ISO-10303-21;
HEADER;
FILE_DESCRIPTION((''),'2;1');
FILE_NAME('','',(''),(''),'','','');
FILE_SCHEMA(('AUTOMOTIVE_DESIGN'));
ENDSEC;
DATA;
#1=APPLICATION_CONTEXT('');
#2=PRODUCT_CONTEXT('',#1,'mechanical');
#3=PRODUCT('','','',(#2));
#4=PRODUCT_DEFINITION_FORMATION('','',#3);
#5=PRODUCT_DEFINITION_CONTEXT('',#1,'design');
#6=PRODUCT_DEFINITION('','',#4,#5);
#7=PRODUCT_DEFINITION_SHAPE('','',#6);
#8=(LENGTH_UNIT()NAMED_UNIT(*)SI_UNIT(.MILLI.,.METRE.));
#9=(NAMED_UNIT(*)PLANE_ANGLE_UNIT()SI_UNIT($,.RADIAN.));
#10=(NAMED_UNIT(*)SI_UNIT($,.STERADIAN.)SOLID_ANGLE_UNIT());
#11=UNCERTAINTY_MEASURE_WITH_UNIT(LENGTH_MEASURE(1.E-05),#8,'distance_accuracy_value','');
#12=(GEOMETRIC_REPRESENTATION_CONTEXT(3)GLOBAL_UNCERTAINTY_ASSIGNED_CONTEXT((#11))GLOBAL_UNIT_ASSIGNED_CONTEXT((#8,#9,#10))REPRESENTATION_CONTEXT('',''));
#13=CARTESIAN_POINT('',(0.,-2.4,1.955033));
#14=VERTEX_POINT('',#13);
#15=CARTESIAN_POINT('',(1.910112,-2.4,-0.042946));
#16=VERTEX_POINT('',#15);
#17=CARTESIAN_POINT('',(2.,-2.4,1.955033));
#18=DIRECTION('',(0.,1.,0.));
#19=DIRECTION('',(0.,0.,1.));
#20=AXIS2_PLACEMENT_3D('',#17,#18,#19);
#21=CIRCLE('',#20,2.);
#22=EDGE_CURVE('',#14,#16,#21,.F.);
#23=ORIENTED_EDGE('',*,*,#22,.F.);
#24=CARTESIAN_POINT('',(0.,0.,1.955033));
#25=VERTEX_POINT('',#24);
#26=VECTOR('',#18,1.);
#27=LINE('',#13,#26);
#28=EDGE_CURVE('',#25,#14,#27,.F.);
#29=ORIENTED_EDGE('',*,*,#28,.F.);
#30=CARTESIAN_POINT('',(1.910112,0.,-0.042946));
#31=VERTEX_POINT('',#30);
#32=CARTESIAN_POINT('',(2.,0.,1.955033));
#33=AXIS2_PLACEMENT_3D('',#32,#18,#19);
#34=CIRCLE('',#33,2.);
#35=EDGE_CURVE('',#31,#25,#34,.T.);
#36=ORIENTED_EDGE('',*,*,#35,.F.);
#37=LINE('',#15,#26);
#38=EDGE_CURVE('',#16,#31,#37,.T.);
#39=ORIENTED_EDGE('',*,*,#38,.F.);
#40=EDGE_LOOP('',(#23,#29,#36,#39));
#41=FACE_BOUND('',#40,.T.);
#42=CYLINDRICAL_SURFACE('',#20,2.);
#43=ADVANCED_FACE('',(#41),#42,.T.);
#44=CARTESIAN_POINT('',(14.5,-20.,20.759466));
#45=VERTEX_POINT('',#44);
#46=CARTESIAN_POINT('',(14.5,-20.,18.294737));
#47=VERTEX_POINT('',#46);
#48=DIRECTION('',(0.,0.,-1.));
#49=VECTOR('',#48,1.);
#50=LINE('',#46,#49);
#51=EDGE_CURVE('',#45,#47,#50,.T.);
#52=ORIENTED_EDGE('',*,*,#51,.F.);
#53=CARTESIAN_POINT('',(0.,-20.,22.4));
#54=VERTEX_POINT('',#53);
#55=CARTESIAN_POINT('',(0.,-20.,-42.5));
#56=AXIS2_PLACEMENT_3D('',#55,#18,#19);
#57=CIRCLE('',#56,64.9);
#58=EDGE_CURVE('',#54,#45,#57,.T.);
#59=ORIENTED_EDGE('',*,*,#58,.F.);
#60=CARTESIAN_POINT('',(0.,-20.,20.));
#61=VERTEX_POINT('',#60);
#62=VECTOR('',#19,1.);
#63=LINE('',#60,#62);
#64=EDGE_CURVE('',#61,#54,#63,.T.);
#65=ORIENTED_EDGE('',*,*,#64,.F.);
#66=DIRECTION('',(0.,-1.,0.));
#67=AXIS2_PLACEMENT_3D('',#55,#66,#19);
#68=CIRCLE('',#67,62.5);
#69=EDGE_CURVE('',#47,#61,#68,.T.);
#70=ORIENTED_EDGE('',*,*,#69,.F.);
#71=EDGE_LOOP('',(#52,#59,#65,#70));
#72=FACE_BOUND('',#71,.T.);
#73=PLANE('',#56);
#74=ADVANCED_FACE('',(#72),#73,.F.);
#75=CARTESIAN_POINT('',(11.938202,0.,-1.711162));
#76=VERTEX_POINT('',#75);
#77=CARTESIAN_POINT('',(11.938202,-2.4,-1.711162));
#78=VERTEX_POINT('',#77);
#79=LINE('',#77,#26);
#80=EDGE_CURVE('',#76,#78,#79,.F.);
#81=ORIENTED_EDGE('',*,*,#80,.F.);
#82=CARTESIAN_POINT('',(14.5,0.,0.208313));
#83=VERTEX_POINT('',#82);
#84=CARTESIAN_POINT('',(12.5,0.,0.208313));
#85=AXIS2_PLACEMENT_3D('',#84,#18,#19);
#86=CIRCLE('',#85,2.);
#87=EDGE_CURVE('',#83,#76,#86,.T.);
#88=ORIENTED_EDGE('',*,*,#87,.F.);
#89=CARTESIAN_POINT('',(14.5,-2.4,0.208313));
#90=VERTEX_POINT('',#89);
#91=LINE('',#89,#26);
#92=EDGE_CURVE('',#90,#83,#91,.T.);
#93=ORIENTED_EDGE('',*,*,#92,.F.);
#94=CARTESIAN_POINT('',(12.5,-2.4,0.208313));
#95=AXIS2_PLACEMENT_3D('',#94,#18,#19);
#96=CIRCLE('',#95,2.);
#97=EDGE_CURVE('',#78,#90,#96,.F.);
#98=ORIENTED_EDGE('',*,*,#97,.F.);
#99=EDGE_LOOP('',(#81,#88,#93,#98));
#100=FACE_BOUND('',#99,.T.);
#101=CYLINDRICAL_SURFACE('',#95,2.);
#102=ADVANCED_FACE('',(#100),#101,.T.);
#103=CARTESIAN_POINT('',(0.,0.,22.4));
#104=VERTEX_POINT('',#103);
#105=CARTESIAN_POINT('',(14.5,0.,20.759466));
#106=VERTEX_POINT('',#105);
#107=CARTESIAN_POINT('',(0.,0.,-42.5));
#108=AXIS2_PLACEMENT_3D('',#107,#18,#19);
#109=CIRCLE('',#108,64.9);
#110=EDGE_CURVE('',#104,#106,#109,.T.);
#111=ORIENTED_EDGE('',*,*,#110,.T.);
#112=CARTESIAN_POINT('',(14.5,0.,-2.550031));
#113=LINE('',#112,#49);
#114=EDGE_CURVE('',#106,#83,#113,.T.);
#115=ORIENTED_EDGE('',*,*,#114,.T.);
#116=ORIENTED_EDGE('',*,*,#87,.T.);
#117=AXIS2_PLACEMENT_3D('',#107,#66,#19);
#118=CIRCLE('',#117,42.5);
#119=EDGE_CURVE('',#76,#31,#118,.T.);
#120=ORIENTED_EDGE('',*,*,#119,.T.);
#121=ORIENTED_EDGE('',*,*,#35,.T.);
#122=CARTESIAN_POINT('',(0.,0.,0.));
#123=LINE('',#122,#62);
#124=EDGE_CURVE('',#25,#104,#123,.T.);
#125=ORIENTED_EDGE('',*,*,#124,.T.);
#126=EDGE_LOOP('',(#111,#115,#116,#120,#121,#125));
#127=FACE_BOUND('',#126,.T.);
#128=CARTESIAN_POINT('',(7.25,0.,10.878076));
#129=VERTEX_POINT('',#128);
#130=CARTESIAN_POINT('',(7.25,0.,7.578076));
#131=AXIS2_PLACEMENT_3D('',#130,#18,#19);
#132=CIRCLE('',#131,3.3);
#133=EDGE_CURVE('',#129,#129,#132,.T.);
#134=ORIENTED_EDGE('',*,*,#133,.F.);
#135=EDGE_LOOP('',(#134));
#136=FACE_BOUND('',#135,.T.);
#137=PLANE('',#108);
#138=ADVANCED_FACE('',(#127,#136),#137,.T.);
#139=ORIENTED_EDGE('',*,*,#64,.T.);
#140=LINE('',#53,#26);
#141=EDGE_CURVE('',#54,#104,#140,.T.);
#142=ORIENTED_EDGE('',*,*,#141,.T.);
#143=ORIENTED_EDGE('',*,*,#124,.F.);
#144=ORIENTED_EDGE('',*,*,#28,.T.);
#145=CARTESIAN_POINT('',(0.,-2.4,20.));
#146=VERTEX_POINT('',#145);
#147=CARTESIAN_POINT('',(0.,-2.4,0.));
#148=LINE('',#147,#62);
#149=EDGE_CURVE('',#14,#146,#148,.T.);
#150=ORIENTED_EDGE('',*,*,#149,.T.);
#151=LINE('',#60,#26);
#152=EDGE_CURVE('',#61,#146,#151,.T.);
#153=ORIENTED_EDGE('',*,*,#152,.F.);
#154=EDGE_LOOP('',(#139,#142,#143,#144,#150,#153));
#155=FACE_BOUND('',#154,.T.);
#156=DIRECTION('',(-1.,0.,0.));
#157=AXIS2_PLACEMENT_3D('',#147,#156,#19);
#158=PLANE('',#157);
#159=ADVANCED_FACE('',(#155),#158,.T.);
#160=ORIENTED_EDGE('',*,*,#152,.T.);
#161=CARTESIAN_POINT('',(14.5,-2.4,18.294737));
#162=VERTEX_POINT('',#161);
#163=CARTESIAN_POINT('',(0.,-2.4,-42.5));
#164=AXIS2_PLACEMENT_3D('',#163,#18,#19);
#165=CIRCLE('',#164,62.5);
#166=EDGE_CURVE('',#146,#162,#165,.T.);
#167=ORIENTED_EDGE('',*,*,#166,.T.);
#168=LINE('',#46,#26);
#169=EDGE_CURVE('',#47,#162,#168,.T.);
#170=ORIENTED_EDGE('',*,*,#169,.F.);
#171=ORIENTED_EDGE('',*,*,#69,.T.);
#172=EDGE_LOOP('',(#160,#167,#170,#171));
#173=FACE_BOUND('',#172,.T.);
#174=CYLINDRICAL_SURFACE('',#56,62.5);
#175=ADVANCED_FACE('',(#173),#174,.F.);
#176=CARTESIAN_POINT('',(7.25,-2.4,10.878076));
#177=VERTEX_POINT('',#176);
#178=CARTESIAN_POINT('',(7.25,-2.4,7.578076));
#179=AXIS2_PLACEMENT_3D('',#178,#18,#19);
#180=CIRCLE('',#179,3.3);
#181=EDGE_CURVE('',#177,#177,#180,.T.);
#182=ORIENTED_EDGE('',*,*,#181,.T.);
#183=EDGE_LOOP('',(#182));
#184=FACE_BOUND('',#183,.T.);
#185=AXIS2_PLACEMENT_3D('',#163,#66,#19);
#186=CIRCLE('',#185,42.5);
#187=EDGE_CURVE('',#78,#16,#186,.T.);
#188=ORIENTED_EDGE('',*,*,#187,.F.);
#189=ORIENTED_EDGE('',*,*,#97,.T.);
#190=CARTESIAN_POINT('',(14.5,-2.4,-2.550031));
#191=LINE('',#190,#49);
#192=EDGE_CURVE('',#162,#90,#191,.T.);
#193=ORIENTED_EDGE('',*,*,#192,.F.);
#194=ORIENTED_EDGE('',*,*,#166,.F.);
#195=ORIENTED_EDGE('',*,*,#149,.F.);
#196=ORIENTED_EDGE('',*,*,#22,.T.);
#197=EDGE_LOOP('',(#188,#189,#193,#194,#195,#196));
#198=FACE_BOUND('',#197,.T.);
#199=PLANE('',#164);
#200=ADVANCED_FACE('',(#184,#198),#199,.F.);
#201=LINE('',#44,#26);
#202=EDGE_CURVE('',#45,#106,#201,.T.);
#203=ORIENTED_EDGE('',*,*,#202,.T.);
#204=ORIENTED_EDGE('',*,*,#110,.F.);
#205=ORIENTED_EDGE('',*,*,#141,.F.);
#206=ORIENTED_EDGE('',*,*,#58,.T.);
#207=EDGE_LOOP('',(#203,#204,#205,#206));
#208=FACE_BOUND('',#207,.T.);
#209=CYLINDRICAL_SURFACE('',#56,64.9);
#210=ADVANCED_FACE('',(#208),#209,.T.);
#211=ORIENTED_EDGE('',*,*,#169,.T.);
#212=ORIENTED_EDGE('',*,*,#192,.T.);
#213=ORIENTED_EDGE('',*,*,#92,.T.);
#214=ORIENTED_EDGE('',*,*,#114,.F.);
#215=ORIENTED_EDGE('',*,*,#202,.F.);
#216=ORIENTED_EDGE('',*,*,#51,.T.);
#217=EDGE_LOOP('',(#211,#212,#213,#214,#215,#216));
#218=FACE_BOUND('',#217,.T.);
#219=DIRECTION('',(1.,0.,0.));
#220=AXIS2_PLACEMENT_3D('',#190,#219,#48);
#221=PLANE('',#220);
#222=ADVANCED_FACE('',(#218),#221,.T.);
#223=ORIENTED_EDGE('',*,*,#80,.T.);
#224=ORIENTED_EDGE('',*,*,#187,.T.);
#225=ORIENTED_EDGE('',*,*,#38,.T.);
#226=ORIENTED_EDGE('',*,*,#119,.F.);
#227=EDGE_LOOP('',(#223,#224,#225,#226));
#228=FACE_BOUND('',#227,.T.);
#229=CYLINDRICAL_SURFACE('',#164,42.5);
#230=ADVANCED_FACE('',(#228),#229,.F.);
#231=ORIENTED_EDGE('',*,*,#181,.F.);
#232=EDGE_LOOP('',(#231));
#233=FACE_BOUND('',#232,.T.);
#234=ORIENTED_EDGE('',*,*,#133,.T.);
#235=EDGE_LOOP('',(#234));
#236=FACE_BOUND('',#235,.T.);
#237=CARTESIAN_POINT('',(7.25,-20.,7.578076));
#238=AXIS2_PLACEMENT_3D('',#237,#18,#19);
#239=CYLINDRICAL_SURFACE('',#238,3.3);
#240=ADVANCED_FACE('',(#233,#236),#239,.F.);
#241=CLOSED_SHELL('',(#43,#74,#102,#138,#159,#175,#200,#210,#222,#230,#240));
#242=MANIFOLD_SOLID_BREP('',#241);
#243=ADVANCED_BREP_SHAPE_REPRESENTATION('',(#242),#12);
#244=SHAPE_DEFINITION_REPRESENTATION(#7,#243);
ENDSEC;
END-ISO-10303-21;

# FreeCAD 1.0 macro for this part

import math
import FreeCAD as App
import Part
import Sketcher

V = App.Vector


def edges_at(feature, points):
    """Names of the edges that pass closest to the given points."""
    edges = feature.Shape.Edges
    near = lambda p: min(range(len(edges)), key=lambda i: edges[i].distToShape(Part.Vertex(*p))[0])
    return sorted({f"Edge{near(p) + 1}" for p in points})

doc = App.newDocument("Part")
body = doc.addObject("PartDesign::Body", "Body")

sketch1 = body.newObject("Sketcher::SketchObject", "Sketch")
sketch1.AttachmentSupport = (doc.getObject("XZ_Plane"), [""])
sketch1.MapMode = "FlatFace"
sketch1.addGeometry([
    Part.LineSegment(V(0, 0, 0), V(0, 20, 0)),
    Part.ArcOfCircle(Part.Circle(V(0, -42, 0), V(0, 0, 1), 62), math.radians(76.59), math.radians(90)),
    Part.LineSegment(V(14, 18, 0), V(14, -3, 0)),
    Part.ArcOfCircle(Part.Circle(V(0, -43, 0), V(0, 0, 1), 43), math.radians(70.05), math.radians(90)),
], False)
sketch1.addConstraint([
    Sketcher.Constraint("Coincident", 0, 2, 1, 2),
    Sketcher.Constraint("Coincident", 1, 1, 2, 1),
    Sketcher.Constraint("Coincident", 2, 2, 3, 1),
    Sketcher.Constraint("Coincident", 3, 2, 0, 1),
    Sketcher.Constraint("Vertical", 0),
    Sketcher.Constraint("Vertical", 2),
    Sketcher.Constraint("Coincident", 3, 2, -1, 1),
    Sketcher.Constraint("Coincident", 3, 3, 1, 3),
    Sketcher.Constraint("PointOnObject", 1, 3, -2),
    Sketcher.Constraint("Radius", 1, 62.5),
    Sketcher.Constraint("Radius", 3, 42.5),
    Sketcher.Constraint("DistanceX", -1, 1, 1, 1, 14.5),
])
pad1 = body.newObject("PartDesign::Pad", "Pad")
pad1.Profile = sketch1
pad1.Length = 2.4

sketch2 = body.newObject("Sketcher::SketchObject", "Sketch001")
sketch2.AttachmentSupport = (doc.getObject("XZ_Plane"), [""])
sketch2.MapMode = "FlatFace"
sketch2.addGeometry([
    Part.LineSegment(V(0, 20, 0), V(0, 22.4, 0)),
    Part.ArcOfCircle(Part.Circle(V(0, -42.5, 0), V(0, 0, 1), 64.9), math.radians(77.09), math.radians(90)),
    Part.LineSegment(V(14.5, 20.8, 0), V(14.5, 18.3, 0)),
    Part.ArcOfCircle(Part.Circle(V(0, -42.5, 0), V(0, 0, 1), 62.5), math.radians(76.59), math.radians(90)),
], False)
sketch2.addConstraint([
    Sketcher.Constraint("Coincident", 0, 2, 1, 2),
    Sketcher.Constraint("Coincident", 1, 1, 2, 1),
    Sketcher.Constraint("Coincident", 2, 2, 3, 1),
    Sketcher.Constraint("Coincident", 3, 2, 0, 1),
    Sketcher.Constraint("Vertical", 0),
    Sketcher.Constraint("Vertical", 2),
    Sketcher.Constraint("Coincident", 3, 3, 1, 3),
    Sketcher.Constraint("PointOnObject", 1, 3, -2),
    Sketcher.Constraint("PointOnObject", 0, 2, -2),
    Sketcher.Constraint("Radius", 1, 64.9),
    Sketcher.Constraint("Radius", 3, 62.5),
    Sketcher.Constraint("DistanceY", -1, 1, 3, 2, 20.0),
    Sketcher.Constraint("DistanceX", -1, 1, 1, 1, 14.5),
])
pad2 = body.newObject("PartDesign::Pad", "Pad001")
pad2.Profile = sketch2
pad2.Length = 20
doc.recompute()

fillet = body.newObject("PartDesign::Fillet", "Fillet")
fillet.Base = (pad2, edges_at(pad2, [(14.5, -1.2, -2.55), (0, -1.2, 0)]))
fillet.Radius = 2

sketch3 = body.newObject("Sketcher::SketchObject", "Sketch002")
sketch3.AttachmentSupport = (doc.getObject("XZ_Plane"), [""])
sketch3.MapMode = "FlatFace"
sketch3.addGeometry(Part.Circle(V(7.2, 7.6, 0), V(0, 0, 1), 3.3), False)
sketch3.addConstraint([
    Sketcher.Constraint("Diameter", 0, 6.6),
    Sketcher.Constraint("DistanceX", -1, 1, 0, 3, 7.25),
    Sketcher.Constraint("DistanceY", -1, 1, 0, 3, 7.578076),
])
pocket1 = body.newObject("PartDesign::Pocket", "Pocket")
pocket1.Profile = sketch3
pocket1.Type = "ThroughAll"
pocket1.Reversed = True

doc.recompute()
